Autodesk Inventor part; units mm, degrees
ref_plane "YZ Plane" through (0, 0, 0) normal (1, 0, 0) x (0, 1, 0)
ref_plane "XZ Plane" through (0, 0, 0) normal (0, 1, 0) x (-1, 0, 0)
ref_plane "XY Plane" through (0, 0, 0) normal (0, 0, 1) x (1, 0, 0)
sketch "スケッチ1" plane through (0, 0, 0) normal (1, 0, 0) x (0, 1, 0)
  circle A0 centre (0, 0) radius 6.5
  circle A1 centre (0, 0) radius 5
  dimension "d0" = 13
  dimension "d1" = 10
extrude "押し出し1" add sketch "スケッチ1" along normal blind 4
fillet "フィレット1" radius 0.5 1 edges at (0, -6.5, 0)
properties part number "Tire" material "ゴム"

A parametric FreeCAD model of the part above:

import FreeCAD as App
import Part
import Sketcher


def edges_at(feature, points):
    """Names of the edges that pass closest to the given points."""
    edges = feature.Shape.Edges
    near = lambda p: min(range(len(edges)), key=lambda i: edges[i].distToShape(Part.Vertex(*p))[0])
    return sorted({f"Edge{near(p) + 1}" for p in points})

doc = App.newDocument("Part")
body = doc.addObject("PartDesign::Body", "Body")

sketch1 = body.newObject("Sketcher::SketchObject", "Sketch")
sketch1.AttachmentSupport = (doc.getObject("YZ_Plane"), [""])
sketch1.MapMode = "FlatFace"
sketch1.addGeometry([
    Part.Circle(App.Vector(0, 0, 0), App.Vector(0, 0, 1), 6),
    Part.Circle(App.Vector(0, 0, 0), App.Vector(0, 0, 1), 5),
], False)
sketch1.addConstraint([
    Sketcher.Constraint("Coincident", 0, 3, -1, 1),
    Sketcher.Constraint("Coincident", 1, 3, -1, 1),
    Sketcher.Constraint("Diameter", 0, 13.0),
    Sketcher.Constraint("Diameter", 1, 10.0),
])
pad1 = body.newObject("PartDesign::Pad", "Pad")
pad1.Profile = sketch1
pad1.Length = 4
doc.recompute()

fillet = body.newObject("PartDesign::Fillet", "Fillet")
fillet.Base = (pad1, edges_at(pad1, [(0, -6.5, 0)]))
fillet.Radius = 0.5

doc.recompute()
